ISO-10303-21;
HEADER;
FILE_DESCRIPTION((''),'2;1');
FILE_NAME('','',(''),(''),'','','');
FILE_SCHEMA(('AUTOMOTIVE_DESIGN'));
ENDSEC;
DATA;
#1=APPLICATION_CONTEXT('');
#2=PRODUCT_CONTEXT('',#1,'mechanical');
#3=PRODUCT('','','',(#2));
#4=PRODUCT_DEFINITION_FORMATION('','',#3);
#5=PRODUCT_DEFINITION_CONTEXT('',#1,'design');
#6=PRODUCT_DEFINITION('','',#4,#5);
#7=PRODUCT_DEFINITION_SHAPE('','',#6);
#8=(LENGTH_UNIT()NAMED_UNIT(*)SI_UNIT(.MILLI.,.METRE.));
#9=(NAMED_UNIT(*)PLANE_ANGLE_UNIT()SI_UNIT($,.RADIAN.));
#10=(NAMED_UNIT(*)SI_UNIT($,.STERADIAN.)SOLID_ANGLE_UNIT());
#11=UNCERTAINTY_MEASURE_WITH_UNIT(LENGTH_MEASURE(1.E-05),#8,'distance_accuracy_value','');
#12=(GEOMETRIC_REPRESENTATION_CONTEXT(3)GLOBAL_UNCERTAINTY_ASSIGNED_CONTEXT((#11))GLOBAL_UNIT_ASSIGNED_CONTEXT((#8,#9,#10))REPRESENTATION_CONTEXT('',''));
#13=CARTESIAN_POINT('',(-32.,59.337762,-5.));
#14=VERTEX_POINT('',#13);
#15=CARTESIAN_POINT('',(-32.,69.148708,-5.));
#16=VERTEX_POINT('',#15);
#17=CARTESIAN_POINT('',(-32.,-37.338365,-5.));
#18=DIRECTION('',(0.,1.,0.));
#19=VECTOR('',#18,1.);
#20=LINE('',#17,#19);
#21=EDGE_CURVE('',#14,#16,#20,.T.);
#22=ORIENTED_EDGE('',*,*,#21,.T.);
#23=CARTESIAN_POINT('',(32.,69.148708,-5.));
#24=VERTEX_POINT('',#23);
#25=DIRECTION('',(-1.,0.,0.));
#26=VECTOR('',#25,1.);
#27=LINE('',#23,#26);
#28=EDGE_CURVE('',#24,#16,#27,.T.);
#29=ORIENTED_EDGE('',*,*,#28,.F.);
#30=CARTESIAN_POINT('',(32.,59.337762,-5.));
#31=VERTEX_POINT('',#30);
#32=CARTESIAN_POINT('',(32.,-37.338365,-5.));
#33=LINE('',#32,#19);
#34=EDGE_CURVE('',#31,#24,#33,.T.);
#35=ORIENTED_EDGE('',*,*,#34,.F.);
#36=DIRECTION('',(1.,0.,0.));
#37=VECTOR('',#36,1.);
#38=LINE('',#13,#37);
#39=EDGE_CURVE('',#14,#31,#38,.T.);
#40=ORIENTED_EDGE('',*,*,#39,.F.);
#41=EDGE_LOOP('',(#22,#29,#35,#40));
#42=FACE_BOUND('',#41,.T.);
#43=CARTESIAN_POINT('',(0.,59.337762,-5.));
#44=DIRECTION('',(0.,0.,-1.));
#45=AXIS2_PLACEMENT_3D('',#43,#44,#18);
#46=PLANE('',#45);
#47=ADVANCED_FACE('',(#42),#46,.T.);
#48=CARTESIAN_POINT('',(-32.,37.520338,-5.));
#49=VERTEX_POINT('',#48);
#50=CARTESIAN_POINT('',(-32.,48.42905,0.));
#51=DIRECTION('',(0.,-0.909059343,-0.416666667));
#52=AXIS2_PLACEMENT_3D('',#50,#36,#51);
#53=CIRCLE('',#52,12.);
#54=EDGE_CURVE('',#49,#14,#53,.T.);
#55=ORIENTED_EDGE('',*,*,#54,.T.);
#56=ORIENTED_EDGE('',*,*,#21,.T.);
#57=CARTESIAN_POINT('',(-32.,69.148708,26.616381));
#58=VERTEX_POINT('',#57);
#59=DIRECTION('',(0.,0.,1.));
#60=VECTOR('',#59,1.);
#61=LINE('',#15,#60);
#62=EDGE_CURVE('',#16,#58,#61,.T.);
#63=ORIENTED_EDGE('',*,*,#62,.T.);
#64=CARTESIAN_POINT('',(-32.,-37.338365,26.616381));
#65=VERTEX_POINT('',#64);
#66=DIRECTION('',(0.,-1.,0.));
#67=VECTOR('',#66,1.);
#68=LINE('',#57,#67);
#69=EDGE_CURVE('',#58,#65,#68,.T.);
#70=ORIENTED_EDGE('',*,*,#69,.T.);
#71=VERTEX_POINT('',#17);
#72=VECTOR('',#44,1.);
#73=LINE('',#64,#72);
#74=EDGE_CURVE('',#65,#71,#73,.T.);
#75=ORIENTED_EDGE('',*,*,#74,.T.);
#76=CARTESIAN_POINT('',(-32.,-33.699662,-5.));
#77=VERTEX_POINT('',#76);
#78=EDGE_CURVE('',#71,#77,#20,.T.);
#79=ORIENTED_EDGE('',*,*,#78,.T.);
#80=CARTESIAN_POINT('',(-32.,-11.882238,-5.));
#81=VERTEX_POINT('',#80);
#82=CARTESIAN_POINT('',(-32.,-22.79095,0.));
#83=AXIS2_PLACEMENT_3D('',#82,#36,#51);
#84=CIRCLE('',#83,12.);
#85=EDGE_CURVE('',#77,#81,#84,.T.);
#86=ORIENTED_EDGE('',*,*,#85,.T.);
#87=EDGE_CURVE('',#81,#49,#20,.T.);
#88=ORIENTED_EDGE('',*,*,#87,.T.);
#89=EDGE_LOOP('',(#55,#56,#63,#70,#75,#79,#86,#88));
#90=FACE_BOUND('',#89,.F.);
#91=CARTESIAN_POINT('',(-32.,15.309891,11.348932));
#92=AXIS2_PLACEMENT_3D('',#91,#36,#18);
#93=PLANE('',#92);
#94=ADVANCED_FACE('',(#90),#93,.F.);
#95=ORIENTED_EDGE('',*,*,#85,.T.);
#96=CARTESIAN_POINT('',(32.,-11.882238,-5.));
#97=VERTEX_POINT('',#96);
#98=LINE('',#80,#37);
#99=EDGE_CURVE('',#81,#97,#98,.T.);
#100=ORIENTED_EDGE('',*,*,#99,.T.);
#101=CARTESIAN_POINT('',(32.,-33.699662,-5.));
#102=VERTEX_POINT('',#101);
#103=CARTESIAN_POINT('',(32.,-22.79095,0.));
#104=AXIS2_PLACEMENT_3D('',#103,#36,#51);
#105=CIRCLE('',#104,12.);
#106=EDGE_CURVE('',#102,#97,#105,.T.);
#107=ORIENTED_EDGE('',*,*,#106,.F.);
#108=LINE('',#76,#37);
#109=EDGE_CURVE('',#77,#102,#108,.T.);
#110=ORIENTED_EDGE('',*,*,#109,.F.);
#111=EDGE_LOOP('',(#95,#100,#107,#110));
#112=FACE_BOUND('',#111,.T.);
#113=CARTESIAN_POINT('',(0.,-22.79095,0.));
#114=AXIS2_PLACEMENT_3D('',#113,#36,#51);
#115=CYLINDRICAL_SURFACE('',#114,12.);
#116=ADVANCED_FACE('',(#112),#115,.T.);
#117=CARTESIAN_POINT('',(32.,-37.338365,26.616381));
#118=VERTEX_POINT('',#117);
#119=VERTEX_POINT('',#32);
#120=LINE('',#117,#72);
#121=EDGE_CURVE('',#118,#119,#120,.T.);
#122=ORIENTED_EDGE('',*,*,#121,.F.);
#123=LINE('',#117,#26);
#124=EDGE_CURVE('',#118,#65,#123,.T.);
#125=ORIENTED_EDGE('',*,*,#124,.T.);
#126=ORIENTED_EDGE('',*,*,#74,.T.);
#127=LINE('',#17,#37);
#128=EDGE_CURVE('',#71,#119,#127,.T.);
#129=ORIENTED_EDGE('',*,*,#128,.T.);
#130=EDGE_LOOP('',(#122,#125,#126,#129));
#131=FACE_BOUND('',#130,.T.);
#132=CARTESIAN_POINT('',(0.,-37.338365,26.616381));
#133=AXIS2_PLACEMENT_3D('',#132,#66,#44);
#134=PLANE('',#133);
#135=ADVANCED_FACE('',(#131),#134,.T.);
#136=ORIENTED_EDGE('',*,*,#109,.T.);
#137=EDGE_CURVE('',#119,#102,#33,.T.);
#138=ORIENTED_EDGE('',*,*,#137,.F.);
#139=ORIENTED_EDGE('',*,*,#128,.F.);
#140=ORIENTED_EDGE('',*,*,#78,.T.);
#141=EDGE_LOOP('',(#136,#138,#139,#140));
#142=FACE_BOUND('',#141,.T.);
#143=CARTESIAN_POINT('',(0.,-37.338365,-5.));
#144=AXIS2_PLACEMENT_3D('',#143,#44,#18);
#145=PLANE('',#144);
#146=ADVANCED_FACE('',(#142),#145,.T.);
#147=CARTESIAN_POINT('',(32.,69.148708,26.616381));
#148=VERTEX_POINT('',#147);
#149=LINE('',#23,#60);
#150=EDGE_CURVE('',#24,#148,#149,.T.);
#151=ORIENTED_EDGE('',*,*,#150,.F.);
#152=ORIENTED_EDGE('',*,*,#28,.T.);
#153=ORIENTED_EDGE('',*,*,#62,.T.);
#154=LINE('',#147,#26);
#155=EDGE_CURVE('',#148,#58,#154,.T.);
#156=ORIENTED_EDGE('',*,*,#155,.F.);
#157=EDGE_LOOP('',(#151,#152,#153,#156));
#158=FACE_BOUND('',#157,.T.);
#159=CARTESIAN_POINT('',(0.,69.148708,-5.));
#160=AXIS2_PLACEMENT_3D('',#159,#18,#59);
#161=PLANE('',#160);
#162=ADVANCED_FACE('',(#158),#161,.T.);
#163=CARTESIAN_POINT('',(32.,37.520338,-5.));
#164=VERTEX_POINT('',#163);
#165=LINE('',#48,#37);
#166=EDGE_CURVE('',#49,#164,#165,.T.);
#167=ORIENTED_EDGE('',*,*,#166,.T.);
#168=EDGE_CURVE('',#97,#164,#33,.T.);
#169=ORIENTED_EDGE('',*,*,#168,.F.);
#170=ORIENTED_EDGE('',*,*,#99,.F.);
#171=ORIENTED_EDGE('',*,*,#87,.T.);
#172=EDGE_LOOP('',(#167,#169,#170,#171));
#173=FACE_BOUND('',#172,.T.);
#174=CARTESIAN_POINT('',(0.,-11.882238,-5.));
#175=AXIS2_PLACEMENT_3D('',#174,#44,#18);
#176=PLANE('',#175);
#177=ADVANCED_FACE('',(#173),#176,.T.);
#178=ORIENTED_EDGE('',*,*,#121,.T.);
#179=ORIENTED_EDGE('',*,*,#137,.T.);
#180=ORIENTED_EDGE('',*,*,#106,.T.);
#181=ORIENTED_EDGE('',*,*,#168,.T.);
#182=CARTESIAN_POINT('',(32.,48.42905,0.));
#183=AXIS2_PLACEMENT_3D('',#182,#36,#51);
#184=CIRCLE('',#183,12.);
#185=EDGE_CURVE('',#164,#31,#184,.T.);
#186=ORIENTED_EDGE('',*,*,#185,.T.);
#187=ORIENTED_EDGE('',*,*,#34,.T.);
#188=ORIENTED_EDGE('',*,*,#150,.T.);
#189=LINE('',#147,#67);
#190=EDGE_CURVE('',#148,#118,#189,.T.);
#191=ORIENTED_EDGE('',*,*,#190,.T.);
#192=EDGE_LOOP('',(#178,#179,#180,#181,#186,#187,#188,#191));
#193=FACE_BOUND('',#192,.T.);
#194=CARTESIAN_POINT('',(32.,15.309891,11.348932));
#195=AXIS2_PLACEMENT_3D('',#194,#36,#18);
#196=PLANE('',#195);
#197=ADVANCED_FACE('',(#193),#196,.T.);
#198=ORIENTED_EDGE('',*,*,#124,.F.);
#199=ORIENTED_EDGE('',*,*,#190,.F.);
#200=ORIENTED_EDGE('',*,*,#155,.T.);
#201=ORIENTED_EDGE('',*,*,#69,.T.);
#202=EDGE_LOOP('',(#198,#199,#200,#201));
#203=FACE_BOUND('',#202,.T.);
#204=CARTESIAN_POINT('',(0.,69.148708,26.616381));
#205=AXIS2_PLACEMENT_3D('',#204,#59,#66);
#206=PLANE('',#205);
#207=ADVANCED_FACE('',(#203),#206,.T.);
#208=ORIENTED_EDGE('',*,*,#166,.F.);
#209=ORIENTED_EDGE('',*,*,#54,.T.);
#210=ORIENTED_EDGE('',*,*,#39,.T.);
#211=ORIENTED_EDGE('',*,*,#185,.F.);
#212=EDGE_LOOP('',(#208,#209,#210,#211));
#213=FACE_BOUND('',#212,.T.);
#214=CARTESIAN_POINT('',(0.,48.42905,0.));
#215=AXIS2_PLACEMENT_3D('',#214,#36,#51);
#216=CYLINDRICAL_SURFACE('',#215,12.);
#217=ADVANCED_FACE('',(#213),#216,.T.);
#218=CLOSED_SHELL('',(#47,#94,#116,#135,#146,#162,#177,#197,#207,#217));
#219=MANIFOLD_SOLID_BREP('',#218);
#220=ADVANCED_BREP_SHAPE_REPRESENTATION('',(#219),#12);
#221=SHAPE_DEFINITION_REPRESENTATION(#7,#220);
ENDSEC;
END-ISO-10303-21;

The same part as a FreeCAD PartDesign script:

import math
import FreeCAD as App
import Part
import Sketcher

V = App.Vector

doc = App.newDocument("Part")
body = doc.addObject("PartDesign::Body", "Body")

# Sketch on YZ plane
sketch1 = body.newObject("Sketcher::SketchObject", "Sketch")
sketch1.AttachmentSupport = (doc.getObject("YZ_Plane"), [""])
sketch1.MapMode = "FlatFace"
sketch1.addGeometry([
    Part.LineSegment(V(-37.3, 26.6, 0), V(-37.3, -5, 0)),  # 0
    Part.LineSegment(V(-37.3, -5, 0), V(-33.7, -5, 0)),  # 1
    Part.ArcOfCircle(Part.Circle(V(-22.8, 0, 0), V(0, 0, 1), 12), math.radians(-155), math.radians(-25)),  # 2
    Part.LineSegment(V(-11.9, -5, 0), V(37.5, -5, 0)),  # 3
    Part.ArcOfCircle(Part.Circle(V(48.4, 0, 0), V(0, 0, 1), 12), math.radians(-155), math.radians(-25)),  # 4
    Part.LineSegment(V(59.3, -5, 0), V(69.1, -5, 0)),  # 5
    Part.LineSegment(V(69.1, -5, 0), V(69.1, 26.6, 0)),  # 6
    Part.LineSegment(V(69.1, 26.6, 0), V(-37.3, 26.6, 0)),  # 7
], False)
sketch1.addConstraint([
    Sketcher.Constraint("Coincident", 0, 2, 1, 1),
    Sketcher.Constraint("Coincident", 1, 2, 2, 1),
    Sketcher.Constraint("Coincident", 2, 2, 3, 1),
    Sketcher.Constraint("Coincident", 3, 2, 4, 1),
    Sketcher.Constraint("Coincident", 4, 2, 5, 1),
    Sketcher.Constraint("Coincident", 5, 2, 6, 1),
    Sketcher.Constraint("Coincident", 6, 2, 7, 1),
    Sketcher.Constraint("Coincident", 7, 2, 0, 1),
    Sketcher.Constraint("Vertical", 0),
    Sketcher.Constraint("Horizontal", 1),
    Sketcher.Constraint("Horizontal", 3),
    Sketcher.Constraint("Horizontal", 5),
    Sketcher.Constraint("Vertical", 6),
    Sketcher.Constraint("Horizontal", 7),
    Sketcher.Constraint("Equal", 2, 4),
    Sketcher.Constraint("PointOnObject", 2, 3, -1),
    Sketcher.Constraint("PointOnObject", 4, 3, -1),
    Sketcher.Constraint("Horizontal", 1, 2, 2, 2),
    Sketcher.Constraint("Horizontal", 3, 2, 4, 2),
    Sketcher.Constraint("Radius", 2, 12.0),
    Sketcher.Constraint("DistanceY", 0, 2, -1, 1, 5.0),
    Sketcher.Constraint("DistanceX", 2, 3, 4, 3, 71.22),
    Sketcher.Constraint("DistanceY", 0, 2, 0, 1, 31.616381),
    Sketcher.Constraint("DistanceX", 1, 1, 1, 2, 3.638703),
    Sketcher.Constraint("DistanceX", 5, 1, 5, 2, 9.810946),
    Sketcher.Constraint("DistanceX", 2, 3, -1, 1, 22.79095),
])
pad1 = body.newObject("PartDesign::Pad", "Pad")
pad1.Profile = sketch1
pad1.Length = 64
pad1.Midplane = True

doc.recompute()
